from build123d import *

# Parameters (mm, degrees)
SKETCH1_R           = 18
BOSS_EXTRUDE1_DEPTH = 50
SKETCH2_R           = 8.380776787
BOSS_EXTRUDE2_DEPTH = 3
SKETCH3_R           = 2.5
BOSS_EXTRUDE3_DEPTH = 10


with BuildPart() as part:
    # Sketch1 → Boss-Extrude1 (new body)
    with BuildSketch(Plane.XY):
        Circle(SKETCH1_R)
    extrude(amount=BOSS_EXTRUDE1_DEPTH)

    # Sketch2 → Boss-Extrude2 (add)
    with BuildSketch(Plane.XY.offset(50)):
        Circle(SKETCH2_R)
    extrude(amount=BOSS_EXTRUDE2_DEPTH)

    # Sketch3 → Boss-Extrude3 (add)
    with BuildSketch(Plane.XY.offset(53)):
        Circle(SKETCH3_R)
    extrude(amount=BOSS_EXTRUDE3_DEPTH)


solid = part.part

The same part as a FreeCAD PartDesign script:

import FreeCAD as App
import Part
import Sketcher
Q = App.Units.Quantity

doc = App.newDocument("Part")
params = doc.addObject("Spreadsheet::Sheet", "Params")
for row, (alias, value) in enumerate([
    ("sketch1_diameter", "36 mm"),
    ("pad1_length", "50 mm"),
    ("pad2_length", "3 mm"),
    ("sketch3_diameter", "5 mm"),
    ("pad3_length", "10 mm"),
], start=1):
    params.set(f"A{row}", alias)
    params.set(f"B{row}", "=" + value)
    params.setAlias(f"B{row}", alias)

body = doc.addObject("PartDesign::Body", "Body")

# Sketch on XY plane
sketch1 = doc.addObject("Sketcher::SketchObject", "Sketch")
body.addObject(sketch1)
sketch1.AttachmentSupport = (doc.XY_Plane, [""])
sketch1.MapMode = "FlatFace"
sketch1.addGeometry(Part.Circle(App.Vector(0, 0, 0), App.Vector(0, 0, 1), 18), False)
sketch1.addConstraint(Sketcher.Constraint("Coincident", 0, 3, -1, 1))
sketch1.addConstraint(Sketcher.Constraint("Diameter", 0, Q("36 mm")))
sketch1.setExpression("Constraints[1]", "Params.sketch1_diameter")
pad1 = doc.addObject("PartDesign::Pad", "Pad")
body.addObject(pad1)
pad1.Profile = sketch1
pad1.setExpression("Length", "Params.pad1_length")

# Sketch on XY plane
sketch2 = doc.addObject("Sketcher::SketchObject", "Sketch001")
body.addObject(sketch2)
sketch2.AttachmentSupport = (doc.XY_Plane, [""])
sketch2.MapMode = "FlatFace"
sketch2.AttachmentOffset = App.Placement(App.Vector(0, 0, 50), App.Rotation())
sketch2.addGeometry(Part.Circle(App.Vector(0, 0, 0), App.Vector(0, 0, 1), 8), False)
sketch2.addConstraint(Sketcher.Constraint("Coincident", 0, 3, -1, 1))
sketch2.addConstraint(Sketcher.Constraint("Diameter", 0, Q("16.761554 mm")))
pad2 = doc.addObject("PartDesign::Pad", "Pad001")
body.addObject(pad2)
pad2.Profile = sketch2
pad2.setExpression("Length", "Params.pad2_length")

# Sketch on XY plane
sketch3 = doc.addObject("Sketcher::SketchObject", "Sketch002")
body.addObject(sketch3)
sketch3.AttachmentSupport = (doc.XY_Plane, [""])
sketch3.MapMode = "FlatFace"
sketch3.AttachmentOffset = App.Placement(App.Vector(0, 0, 53), App.Rotation())
sketch3.addGeometry(Part.Circle(App.Vector(0, 0, 0), App.Vector(0, 0, 1), 2.5), False)
sketch3.addConstraint(Sketcher.Constraint("Coincident", 0, 3, -1, 1))
sketch3.addConstraint(Sketcher.Constraint("Diameter", 0, Q("5 mm")))
sketch3.setExpression("Constraints[1]", "Params.sketch3_diameter")
pad3 = doc.addObject("PartDesign::Pad", "Pad002")
body.addObject(pad3)
pad3.Profile = sketch3
pad3.setExpression("Length", "Params.pad3_length")

doc.recompute()
